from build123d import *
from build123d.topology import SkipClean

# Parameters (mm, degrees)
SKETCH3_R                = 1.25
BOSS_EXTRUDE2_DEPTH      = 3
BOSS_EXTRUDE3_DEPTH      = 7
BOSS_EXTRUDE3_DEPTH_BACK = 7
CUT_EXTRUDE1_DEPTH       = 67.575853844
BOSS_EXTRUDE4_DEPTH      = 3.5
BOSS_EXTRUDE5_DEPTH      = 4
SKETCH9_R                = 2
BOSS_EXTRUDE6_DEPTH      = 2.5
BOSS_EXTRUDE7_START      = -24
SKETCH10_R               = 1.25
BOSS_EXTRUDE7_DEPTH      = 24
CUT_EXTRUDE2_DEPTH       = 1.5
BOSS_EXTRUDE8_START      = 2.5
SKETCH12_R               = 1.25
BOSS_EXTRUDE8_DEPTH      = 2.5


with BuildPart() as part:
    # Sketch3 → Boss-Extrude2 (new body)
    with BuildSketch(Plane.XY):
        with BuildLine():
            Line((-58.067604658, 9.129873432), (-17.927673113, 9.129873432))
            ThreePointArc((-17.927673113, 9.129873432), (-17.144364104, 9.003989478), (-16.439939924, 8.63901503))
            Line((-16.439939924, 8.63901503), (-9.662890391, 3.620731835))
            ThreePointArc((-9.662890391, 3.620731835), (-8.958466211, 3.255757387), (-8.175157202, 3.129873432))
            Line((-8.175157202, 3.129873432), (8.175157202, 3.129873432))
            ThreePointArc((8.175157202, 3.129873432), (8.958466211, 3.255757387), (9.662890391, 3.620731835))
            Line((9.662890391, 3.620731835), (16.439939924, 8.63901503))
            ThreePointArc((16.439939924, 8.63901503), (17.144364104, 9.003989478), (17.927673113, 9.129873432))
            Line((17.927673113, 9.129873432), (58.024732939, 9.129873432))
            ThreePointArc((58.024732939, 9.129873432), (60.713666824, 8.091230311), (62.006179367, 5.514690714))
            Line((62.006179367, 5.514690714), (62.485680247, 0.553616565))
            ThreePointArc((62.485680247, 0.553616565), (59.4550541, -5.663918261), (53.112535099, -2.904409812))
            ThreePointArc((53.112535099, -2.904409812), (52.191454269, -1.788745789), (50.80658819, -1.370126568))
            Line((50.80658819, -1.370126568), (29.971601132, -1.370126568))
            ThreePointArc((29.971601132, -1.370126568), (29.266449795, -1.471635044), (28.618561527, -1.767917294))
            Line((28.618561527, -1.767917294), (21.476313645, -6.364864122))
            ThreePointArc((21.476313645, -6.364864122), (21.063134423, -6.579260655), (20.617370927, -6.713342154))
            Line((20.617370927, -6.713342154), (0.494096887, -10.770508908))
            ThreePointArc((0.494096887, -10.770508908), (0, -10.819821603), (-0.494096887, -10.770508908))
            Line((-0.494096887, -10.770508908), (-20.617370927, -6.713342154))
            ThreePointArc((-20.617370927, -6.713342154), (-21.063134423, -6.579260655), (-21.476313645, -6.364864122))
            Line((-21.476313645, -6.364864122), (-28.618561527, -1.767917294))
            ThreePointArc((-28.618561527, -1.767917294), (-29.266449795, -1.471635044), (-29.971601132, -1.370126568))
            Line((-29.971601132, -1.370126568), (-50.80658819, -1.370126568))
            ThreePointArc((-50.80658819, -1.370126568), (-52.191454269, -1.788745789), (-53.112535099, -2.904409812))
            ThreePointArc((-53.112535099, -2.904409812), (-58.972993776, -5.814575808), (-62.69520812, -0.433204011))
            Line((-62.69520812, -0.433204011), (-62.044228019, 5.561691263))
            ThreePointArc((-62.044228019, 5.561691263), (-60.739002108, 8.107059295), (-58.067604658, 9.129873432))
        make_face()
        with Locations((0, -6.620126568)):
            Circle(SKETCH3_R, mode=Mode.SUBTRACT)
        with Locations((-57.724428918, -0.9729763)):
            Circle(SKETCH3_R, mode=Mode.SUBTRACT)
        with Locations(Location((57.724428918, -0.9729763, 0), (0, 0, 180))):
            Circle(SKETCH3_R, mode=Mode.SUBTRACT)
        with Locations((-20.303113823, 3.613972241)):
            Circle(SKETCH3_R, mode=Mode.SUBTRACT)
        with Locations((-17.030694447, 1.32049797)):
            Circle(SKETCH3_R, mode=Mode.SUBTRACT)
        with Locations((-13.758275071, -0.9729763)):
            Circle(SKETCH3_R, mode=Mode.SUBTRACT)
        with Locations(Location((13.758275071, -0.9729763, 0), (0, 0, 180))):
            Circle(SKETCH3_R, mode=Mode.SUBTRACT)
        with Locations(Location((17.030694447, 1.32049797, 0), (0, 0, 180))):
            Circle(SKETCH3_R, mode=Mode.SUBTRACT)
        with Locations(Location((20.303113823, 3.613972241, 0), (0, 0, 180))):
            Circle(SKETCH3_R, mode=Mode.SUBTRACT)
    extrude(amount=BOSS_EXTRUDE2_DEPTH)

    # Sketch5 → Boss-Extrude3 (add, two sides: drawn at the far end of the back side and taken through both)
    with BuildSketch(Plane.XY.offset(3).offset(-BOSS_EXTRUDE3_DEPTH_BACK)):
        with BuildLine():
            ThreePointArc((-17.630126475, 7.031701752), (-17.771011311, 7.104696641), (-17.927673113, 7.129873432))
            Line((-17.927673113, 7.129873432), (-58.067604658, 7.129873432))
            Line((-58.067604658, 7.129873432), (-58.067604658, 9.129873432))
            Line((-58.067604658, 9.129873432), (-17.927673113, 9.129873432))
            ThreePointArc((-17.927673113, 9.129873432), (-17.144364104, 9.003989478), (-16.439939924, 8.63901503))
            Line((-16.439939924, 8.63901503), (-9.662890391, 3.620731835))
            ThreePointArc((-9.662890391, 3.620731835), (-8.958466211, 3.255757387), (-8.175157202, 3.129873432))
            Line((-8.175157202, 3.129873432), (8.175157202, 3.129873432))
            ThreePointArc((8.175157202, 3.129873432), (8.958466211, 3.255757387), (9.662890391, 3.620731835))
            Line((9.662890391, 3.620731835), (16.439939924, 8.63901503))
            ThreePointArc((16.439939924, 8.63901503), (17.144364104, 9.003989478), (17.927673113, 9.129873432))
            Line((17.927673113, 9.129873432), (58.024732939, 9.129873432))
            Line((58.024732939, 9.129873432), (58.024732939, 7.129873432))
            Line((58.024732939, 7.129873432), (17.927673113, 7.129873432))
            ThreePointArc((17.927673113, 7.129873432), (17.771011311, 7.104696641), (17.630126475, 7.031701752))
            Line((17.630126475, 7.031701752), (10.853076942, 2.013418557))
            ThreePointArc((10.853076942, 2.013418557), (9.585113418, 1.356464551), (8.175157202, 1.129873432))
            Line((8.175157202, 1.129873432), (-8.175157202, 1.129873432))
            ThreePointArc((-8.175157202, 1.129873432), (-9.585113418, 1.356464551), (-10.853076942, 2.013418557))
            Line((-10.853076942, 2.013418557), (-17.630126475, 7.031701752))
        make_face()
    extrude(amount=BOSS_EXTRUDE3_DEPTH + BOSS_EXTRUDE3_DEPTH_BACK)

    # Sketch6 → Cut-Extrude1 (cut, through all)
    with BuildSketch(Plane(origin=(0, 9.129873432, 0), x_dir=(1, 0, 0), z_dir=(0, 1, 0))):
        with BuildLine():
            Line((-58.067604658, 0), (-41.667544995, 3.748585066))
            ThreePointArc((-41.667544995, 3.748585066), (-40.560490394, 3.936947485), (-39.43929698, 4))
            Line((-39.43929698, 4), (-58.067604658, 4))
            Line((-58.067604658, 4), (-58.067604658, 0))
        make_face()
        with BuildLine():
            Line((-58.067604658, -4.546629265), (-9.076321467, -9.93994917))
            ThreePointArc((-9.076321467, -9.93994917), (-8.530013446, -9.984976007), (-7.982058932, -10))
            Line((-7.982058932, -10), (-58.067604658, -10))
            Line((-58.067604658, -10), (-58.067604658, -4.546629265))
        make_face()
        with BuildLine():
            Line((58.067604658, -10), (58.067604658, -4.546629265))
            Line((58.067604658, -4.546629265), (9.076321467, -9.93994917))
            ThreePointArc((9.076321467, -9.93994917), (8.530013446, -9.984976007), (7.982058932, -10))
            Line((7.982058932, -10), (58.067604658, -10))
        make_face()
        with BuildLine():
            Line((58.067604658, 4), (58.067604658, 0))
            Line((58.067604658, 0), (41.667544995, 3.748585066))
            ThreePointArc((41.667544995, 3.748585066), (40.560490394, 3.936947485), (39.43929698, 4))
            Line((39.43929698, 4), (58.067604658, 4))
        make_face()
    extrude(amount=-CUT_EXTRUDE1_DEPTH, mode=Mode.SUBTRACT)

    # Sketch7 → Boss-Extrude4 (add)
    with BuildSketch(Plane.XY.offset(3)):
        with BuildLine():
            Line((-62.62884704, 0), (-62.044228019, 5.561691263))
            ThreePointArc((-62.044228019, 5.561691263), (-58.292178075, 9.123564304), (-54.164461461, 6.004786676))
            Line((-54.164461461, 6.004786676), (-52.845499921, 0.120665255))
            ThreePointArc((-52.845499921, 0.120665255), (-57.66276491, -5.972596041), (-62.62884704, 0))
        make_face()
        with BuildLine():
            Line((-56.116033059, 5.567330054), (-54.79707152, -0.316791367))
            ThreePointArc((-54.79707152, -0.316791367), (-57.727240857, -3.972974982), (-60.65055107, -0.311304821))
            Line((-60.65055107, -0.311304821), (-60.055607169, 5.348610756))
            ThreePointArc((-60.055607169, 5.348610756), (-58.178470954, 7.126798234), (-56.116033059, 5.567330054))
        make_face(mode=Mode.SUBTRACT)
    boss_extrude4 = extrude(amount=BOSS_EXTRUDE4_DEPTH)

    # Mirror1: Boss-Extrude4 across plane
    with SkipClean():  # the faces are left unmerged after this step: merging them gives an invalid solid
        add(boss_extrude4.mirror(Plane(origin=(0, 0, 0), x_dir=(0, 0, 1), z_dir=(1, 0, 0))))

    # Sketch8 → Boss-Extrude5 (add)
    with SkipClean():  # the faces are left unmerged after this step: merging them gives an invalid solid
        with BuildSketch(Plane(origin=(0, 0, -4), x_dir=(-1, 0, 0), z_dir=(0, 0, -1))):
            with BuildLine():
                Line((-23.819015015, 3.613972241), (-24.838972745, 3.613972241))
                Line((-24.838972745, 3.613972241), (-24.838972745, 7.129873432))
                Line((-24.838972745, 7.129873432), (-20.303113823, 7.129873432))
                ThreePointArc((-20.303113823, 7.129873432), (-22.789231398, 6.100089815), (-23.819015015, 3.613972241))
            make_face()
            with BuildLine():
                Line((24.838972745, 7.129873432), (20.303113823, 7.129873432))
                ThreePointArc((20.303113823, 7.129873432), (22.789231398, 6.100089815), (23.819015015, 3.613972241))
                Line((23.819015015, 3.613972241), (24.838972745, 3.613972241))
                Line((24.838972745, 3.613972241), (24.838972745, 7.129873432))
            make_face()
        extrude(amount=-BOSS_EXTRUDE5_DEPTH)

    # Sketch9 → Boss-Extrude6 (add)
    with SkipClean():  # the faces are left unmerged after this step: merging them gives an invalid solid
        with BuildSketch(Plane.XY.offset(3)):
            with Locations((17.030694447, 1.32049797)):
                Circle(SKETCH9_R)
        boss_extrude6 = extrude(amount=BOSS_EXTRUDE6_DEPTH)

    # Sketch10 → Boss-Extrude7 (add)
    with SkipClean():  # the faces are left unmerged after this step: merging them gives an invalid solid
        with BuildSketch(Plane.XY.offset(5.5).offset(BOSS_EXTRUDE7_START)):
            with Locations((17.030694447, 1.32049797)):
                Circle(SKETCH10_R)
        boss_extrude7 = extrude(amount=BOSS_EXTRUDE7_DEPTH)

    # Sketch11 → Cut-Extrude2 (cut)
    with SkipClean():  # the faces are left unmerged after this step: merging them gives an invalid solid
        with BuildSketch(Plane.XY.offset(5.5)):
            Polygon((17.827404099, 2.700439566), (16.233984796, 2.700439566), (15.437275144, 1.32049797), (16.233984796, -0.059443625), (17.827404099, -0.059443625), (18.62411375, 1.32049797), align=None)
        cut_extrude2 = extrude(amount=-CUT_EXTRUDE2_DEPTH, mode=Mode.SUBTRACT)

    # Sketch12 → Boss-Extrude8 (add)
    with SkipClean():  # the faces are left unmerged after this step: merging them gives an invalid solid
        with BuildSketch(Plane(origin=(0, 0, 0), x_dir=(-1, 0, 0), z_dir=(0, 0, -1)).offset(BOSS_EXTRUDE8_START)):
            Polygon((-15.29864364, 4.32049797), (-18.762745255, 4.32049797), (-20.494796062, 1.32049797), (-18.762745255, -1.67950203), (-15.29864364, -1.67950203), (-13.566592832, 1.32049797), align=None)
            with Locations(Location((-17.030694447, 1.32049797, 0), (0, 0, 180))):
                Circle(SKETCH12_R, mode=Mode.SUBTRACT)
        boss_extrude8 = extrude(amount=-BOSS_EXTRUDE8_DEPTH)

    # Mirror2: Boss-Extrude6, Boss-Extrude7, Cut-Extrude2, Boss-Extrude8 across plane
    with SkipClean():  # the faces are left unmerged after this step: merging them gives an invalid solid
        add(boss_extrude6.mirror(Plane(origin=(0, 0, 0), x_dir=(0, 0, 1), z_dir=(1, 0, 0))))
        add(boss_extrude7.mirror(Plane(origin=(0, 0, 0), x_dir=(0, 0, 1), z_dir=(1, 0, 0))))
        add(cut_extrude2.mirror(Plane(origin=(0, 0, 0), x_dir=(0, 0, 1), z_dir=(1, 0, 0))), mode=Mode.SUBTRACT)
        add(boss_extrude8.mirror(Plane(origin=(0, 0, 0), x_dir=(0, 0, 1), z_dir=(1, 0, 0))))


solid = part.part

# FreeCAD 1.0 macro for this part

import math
import FreeCAD as App
import Part
import Sketcher
Q = App.Units.Quantity

doc = App.newDocument("Part")
body = doc.addObject("PartDesign::Body", "Body")

sketch1 = body.newObject("Sketcher::SketchObject", "Sketch")
sketch1.AttachmentSupport = (doc.getObject("XY_Plane"), [""])
sketch1.MapMode = "FlatFace"
sketch1.addGeometry([
    Part.LineSegment(App.Vector(-17.927673, 9.129873, 0), App.Vector(-58.067605, 9.129873, 0)),
    Part.ArcOfCircle(Part.Circle(App.Vector(-58.067605, 5.129873, 0), App.Vector(0, 0, 1), 4), math.radians(90), math.radians(173.802588)),
    Part.LineSegment(App.Vector(-62.044228, 5.561691, 0), App.Vector(-62.695208, -0.433204, 0)),
    Part.ArcOfCircle(Part.Circle(App.Vector(-57.724429, -0.972976, 0), App.Vector(0, 0, 1), 5), math.radians(173.802588), math.radians(337.276356)),
    Part.ArcOfCircle(Part.Circle(App.Vector(-50.806588, -3.870127, 0), App.Vector(0, 0, 1), 2.5), math.radians(90), math.radians(157.276356)),
    Part.LineSegment(App.Vector(-50.806588, -1.370127, 0), App.Vector(-29.971601, -1.370127, 0)),
    Part.ArcOfCircle(Part.Circle(App.Vector(-29.971601, -3.870127, 0), App.Vector(0, 0, 1), 2.5), math.radians(57.233555), math.radians(90)),
    Part.LineSegment(App.Vector(-28.618562, -1.767917, 0), App.Vector(-21.476314, -6.364864, 0)),
    Part.ArcOfCircle(Part.Circle(App.Vector(-20.123274, -4.262655, 0), App.Vector(0, 0, 1), 2.5), math.radians(-122.766445), math.radians(-101.398914)),
    Part.LineSegment(App.Vector(-20.617371, -6.713342, 0), App.Vector(-0.494097, -10.770509, 0)),
    Part.ArcOfCircle(Part.Circle(App.Vector(0, -8.319822, 0), App.Vector(0, 0, 1), 2.5), math.radians(-101.398914), math.radians(-78.601086)),
    Part.LineSegment(App.Vector(0.494097, -10.770509, 0), App.Vector(20.617371, -6.713342, 0)),
    Part.ArcOfCircle(Part.Circle(App.Vector(20.123274, -4.262655, 0), App.Vector(0, 0, 1), 2.5), math.radians(-78.601086), math.radians(-57.233555)),
    Part.LineSegment(App.Vector(21.476314, -6.364864, 0), App.Vector(28.618562, -1.767917, 0)),
    Part.ArcOfCircle(Part.Circle(App.Vector(29.971601, -3.870127, 0), App.Vector(0, 0, 1), 2.5), math.radians(90), math.radians(122.766445)),
    Part.LineSegment(App.Vector(29.971601, -1.370127, 0), App.Vector(50.806588, -1.370127, 0)),
    Part.ArcOfCircle(Part.Circle(App.Vector(50.806588, -3.870127, 0), App.Vector(0, 0, 1), 2.5), math.radians(22.723644), math.radians(90)),
    Part.ArcOfCircle(Part.Circle(App.Vector(57.724429, -0.972976, 0), App.Vector(0, 0, 1), 5), math.radians(-157.276356), math.radians(17.777331)),
    Part.LineSegment(App.Vector(62.48568, 0.553617, 0), App.Vector(62.006179, 5.514691, 0)),
    Part.ArcOfCircle(Part.Circle(App.Vector(58.024733, 5.129873, 0), App.Vector(0, 0, 1), 4), math.radians(5.52064), math.radians(90)),
    Part.LineSegment(App.Vector(58.024733, 9.129873, 0), App.Vector(17.927673, 9.129873, 0)),
    Part.ArcOfCircle(Part.Circle(App.Vector(17.927673, 6.629873, 0), App.Vector(0, 0, 1), 2.5), math.radians(90), math.radians(126.519282)),
    Part.LineSegment(App.Vector(16.43994, 8.639015, 0), App.Vector(9.66289, 3.620732, 0)),
    Part.ArcOfCircle(Part.Circle(App.Vector(8.175157, 5.629873, 0), App.Vector(0, 0, 1), 2.5), math.radians(-90), math.radians(-53.480718)),
    Part.LineSegment(App.Vector(8.175157, 3.129873, 0), App.Vector(-8.175157, 3.129873, 0)),
    Part.ArcOfCircle(Part.Circle(App.Vector(-8.175157, 5.629873, 0), App.Vector(0, 0, 1), 2.5), math.radians(-126.519282), math.radians(-90)),
    Part.LineSegment(App.Vector(-9.66289, 3.620732, 0), App.Vector(-16.43994, 8.639015, 0)),
    Part.ArcOfCircle(Part.Circle(App.Vector(-17.927673, 6.629873, 0), App.Vector(0, 0, 1), 2.5), math.radians(53.480718), math.radians(90)),
    Part.Circle(App.Vector(0, -6.620127, 0), App.Vector(0, 0, 1), 1.25),
    Part.Circle(App.Vector(57.724429, -0.972976, 0), App.Vector(0, 0, 1), 1.25),
    Part.Circle(App.Vector(13.758275, -0.972976, 0), App.Vector(0, 0, 1), 1.25),
    Part.Circle(App.Vector(17.030694, 1.320498, 0), App.Vector(0, 0, 1), 1.25),
    Part.Circle(App.Vector(20.303114, 3.613972, 0), App.Vector(0, 0, 1), 1.25),
    Part.Circle(App.Vector(-13.758275, -0.972976, 0), App.Vector(0, 0, 1), 1.25),
    Part.Circle(App.Vector(-17.030694, 1.320498, 0), App.Vector(0, 0, 1), 1.25),
    Part.Circle(App.Vector(-57.724429, -0.972976, 0), App.Vector(0, 0, 1), 1.25),
    Part.Circle(App.Vector(-20.303114, 3.613972, 0), App.Vector(0, 0, 1), 1.25),
], False)
sketch1.addConstraint([
    Sketcher.Constraint("Tangent", 0, 2, 1, 1),
    Sketcher.Constraint("Tangent", 1, 2, 2, 1),
    Sketcher.Constraint("Tangent", 2, 2, 3, 1),
    Sketcher.Constraint("Tangent", 3, 2, 4, 2),
    Sketcher.Constraint("Tangent", 4, 1, 5, 1),
    Sketcher.Constraint("Tangent", 5, 2, 6, 2),
    Sketcher.Constraint("Tangent", 6, 1, 7, 1),
    Sketcher.Constraint("Tangent", 7, 2, 8, 1),
    Sketcher.Constraint("Tangent", 8, 2, 9, 1),
    Sketcher.Constraint("Tangent", 9, 2, 10, 1),
    Sketcher.Constraint("Tangent", 10, 2, 11, 1),
    Sketcher.Constraint("Tangent", 11, 2, 12, 1),
    Sketcher.Constraint("Tangent", 12, 2, 13, 1),
    Sketcher.Constraint("Tangent", 13, 2, 14, 2),
    Sketcher.Constraint("Tangent", 14, 1, 15, 1),
    Sketcher.Constraint("Tangent", 15, 2, 16, 2),
    Sketcher.Constraint("Tangent", 16, 1, 17, 1),
    Sketcher.Constraint("Coincident", 17, 2, 18, 1),
    Sketcher.Constraint("Tangent", 18, 2, 19, 1),
    Sketcher.Constraint("Tangent", 19, 2, 20, 1),
    Sketcher.Constraint("Tangent", 20, 2, 21, 1),
    Sketcher.Constraint("Tangent", 21, 2, 22, 1),
    Sketcher.Constraint("Tangent", 22, 2, 23, 2),
    Sketcher.Constraint("Tangent", 23, 1, 24, 1),
    Sketcher.Constraint("Tangent", 24, 2, 25, 2),
    Sketcher.Constraint("Tangent", 25, 1, 26, 1),
    Sketcher.Constraint("Tangent", 26, 2, 27, 1),
    Sketcher.Constraint("Tangent", 27, 2, 0, 1),
    Sketcher.Constraint("Horizontal", 0),
    Sketcher.Constraint("Horizontal", 5),
    Sketcher.Constraint("Horizontal", 15),
    Sketcher.Constraint("Horizontal", 20),
    Sketcher.Constraint("Horizontal", 24),
    Sketcher.Constraint("Coincident", 29, 3, 17, 3),
    Sketcher.Constraint("Coincident", 35, 3, 3, 3),
    Sketcher.Constraint("Equal", 4, 6),
    Sketcher.Constraint("Equal", 6, 8),
    Sketcher.Constraint("Equal", 8, 10),
    Sketcher.Constraint("Equal", 10, 12),
    Sketcher.Constraint("Equal", 12, 14),
    Sketcher.Constraint("Equal", 14, 16),
    Sketcher.Constraint("Equal", 3, 17),
    Sketcher.Constraint("Equal", 1, 19),
    Sketcher.Constraint("Equal", 16, 21),
    Sketcher.Constraint("Equal", 21, 23),
    Sketcher.Constraint("Equal", 23, 25),
    Sketcher.Constraint("Equal", 25, 27),
    Sketcher.Constraint("Equal", 28, 29),
    Sketcher.Constraint("Equal", 29, 30),
    Sketcher.Constraint("Equal", 30, 31),
    Sketcher.Constraint("Equal", 31, 32),
    Sketcher.Constraint("Equal", 32, 33),
    Sketcher.Constraint("Equal", 33, 34),
    Sketcher.Constraint("Equal", 34, 35),
    Sketcher.Constraint("Equal", 35, 36),
    Sketcher.Constraint("Symmetric", 8, 3, 12, 3, -2),
    Sketcher.Constraint("Symmetric", 6, 3, 14, 3, -2),
    Sketcher.Constraint("Symmetric", 3, 3, 17, 3, -2),
    Sketcher.Constraint("Symmetric", 21, 3, 27, 3, -2),
    Sketcher.Constraint("Symmetric", 30, 3, 33, 3, -2),
    Sketcher.Constraint("Symmetric", 31, 3, 34, 3, -2),
    Sketcher.Constraint("Symmetric", 32, 3, 36, 3, -2),
    Sketcher.Constraint("PointOnObject", 10, 3, -2),
    Sketcher.Constraint("PointOnObject", 28, 3, -2),
    Sketcher.Constraint("Horizontal", 29, 3, 30, 3),
    Sketcher.Constraint("Horizontal", 22, 2, 25, 1),
    Sketcher.Constraint("Radius", 1, Q("4 mm")),
    Sketcher.Constraint("Radius", 3, Q("5 mm")),
    Sketcher.Constraint("Diameter", 28, Q("2.5 mm")),
    Sketcher.Constraint("Radius", 4, Q("2.5 mm")),
    Sketcher.Constraint("DistanceY", 4, 3, 1, 3, Q("9 mm")),
    Sketcher.Constraint("DistanceY", 23, 3, 21, 3, Q("1 mm")),
    Sketcher.Constraint("DistanceY", 28, 3, 23, 3, Q("12.25 mm")),
    Sketcher.Constraint("DistanceX", 30, 3, 12, 3, Q("6.364999 mm")),
    Sketcher.Constraint("DistanceX", 0, 2, 0, 1, Q("40.139932 mm")),
    Sketcher.Constraint("DistanceX", 20, 2, 20, 1, Q("40.09706 mm")),
    Sketcher.Constraint("DistanceX", 6, 3, -1, 1, Q("29.971601 mm")),
    Sketcher.Constraint("DistanceX", 21, 3, 12, 3, Q("2.195601 mm")),
    Sketcher.Constraint("DistanceY", 32, 3, 21, 3, Q("3.015901 mm")),
    Sketcher.Constraint("DistanceX", 1, 2, 35, 3, Q("4.319799 mm")),
    Sketcher.Constraint("DistanceX", 18, 2, 17, 2, Q("0.479501 mm")),
    Sketcher.Constraint("DistanceY", 16, 1, 18, 2, Q("8.419101 mm")),
    Sketcher.Constraint("Distance", 7, Q("8.49374 mm")),
    Sketcher.Constraint("DistanceX", 5, 1, 5, 2, Q("20.834987 mm")),
    Sketcher.Constraint("DistanceX", 24, 2, 24, 1, Q("16.350314 mm")),
    Sketcher.Constraint("DistanceY", 10, 3, -1, 1, Q("8.319822 mm")),
    Sketcher.Constraint("DistanceY", -1, 1, 1, 2, Q("5.561691 mm")),
    Sketcher.Constraint("DistanceX", 30, 3, 31, 3, Q("3.272419 mm")),
    Sketcher.Constraint("DistanceX", 21, 3, 32, 3, Q("2.375441 mm")),
    Sketcher.Constraint("DistanceY", 8, 2, 34, 3, Q("8.03384 mm")),
])
pad1 = body.newObject("PartDesign::Pad", "Pad")
pad1.Profile = sketch1
pad1.Length = 3

sketch2 = body.newObject("Sketcher::SketchObject", "Sketch001")
sketch2.AttachmentSupport = (doc.getObject("XY_Plane"), [""])
sketch2.MapMode = "FlatFace"
sketch2.AttachmentOffset = App.Placement(App.Vector(0, 0, 3), App.Rotation())
sketch2.addGeometry([
    Part.ArcOfCircle(Part.Circle(App.Vector(-17.927673, 6.629873, 0), App.Vector(0, 0, 1), 0.5), math.radians(53.480718), math.radians(90)),
    Part.LineSegment(App.Vector(-17.630126, 7.031702, 0), App.Vector(-10.853077, 2.013419, 0)),
    Part.ArcOfCircle(Part.Circle(App.Vector(-8.175157, 5.629873, 0), App.Vector(0, 0, 1), 4.5), math.radians(-126.519282), math.radians(-90)),
    Part.LineSegment(App.Vector(-8.175157, 1.129873, 0), App.Vector(8.175157, 1.129873, 0)),
    Part.ArcOfCircle(Part.Circle(App.Vector(8.175157, 5.629873, 0), App.Vector(0, 0, 1), 4.5), math.radians(-90), math.radians(-53.480718)),
    Part.LineSegment(App.Vector(10.853077, 2.013419, 0), App.Vector(17.630126, 7.031702, 0)),
    Part.ArcOfCircle(Part.Circle(App.Vector(17.927673, 6.629873, 0), App.Vector(0, 0, 1), 0.5), math.radians(90), math.radians(126.519282)),
    Part.LineSegment(App.Vector(17.927673, 7.129873, 0), App.Vector(58.024733, 7.129873, 0)),
    Part.LineSegment(App.Vector(58.024733, 7.129873, 0), App.Vector(58.024733, 9.129873, 0)),
    Part.LineSegment(App.Vector(58.024733, 9.129873, 0), App.Vector(17.927673, 9.129873, 0)),
    Part.ArcOfCircle(Part.Circle(App.Vector(17.927673, 6.629873, 0), App.Vector(0, 0, 1), 2.5), math.radians(90), math.radians(126.519282)),
    Part.LineSegment(App.Vector(16.43994, 8.639015, 0), App.Vector(9.66289, 3.620732, 0)),
    Part.ArcOfCircle(Part.Circle(App.Vector(8.175157, 5.629873, 0), App.Vector(0, 0, 1), 2.5), math.radians(-90), math.radians(-53.480718)),
    Part.LineSegment(App.Vector(8.175157, 3.129873, 0), App.Vector(-8.175157, 3.129873, 0)),
    Part.ArcOfCircle(Part.Circle(App.Vector(-8.175157, 5.629873, 0), App.Vector(0, 0, 1), 2.5), math.radians(-126.519282), math.radians(-90)),
    Part.LineSegment(App.Vector(-9.66289, 3.620732, 0), App.Vector(-16.43994, 8.639015, 0)),
    Part.ArcOfCircle(Part.Circle(App.Vector(-17.927673, 6.629873, 0), App.Vector(0, 0, 1), 2.5), math.radians(53.480718), math.radians(90)),
    Part.LineSegment(App.Vector(-17.927673, 9.129873, 0), App.Vector(-58.067605, 9.129873, 0)),
    Part.LineSegment(App.Vector(-58.067605, 9.129873, 0), App.Vector(-58.067605, 7.129873, 0)),
    Part.LineSegment(App.Vector(-58.067605, 7.129873, 0), App.Vector(-17.927673, 7.129873, 0)),
], False)
sketch2.addConstraint([
    Sketcher.Constraint("Tangent", 0, 1, 1, 1),
    Sketcher.Constraint("Tangent", 1, 2, 2, 1),
    Sketcher.Constraint("Tangent", 2, 2, 3, 1),
    Sketcher.Constraint("Tangent", 3, 2, 4, 1),
    Sketcher.Constraint("Tangent", 4, 2, 5, 1),
    Sketcher.Constraint("Tangent", 5, 2, 6, 2),
    Sketcher.Constraint("Tangent", 6, 1, 7, 1),
    Sketcher.Constraint("Coincident", 7, 2, 8, 1),
    Sketcher.Constraint("Coincident", 8, 2, 9, 1),
    Sketcher.Constraint("Tangent", 9, 2, 10, 1),
    Sketcher.Constraint("Tangent", 10, 2, 11, 1),
    Sketcher.Constraint("Tangent", 11, 2, 12, 2),
    Sketcher.Constraint("Tangent", 12, 1, 13, 1),
    Sketcher.Constraint("Tangent", 13, 2, 14, 2),
    Sketcher.Constraint("Tangent", 14, 1, 15, 1),
    Sketcher.Constraint("Tangent", 15, 2, 16, 1),
    Sketcher.Constraint("Tangent", 16, 2, 17, 1),
    Sketcher.Constraint("Coincident", 17, 2, 18, 1),
    Sketcher.Constraint("Coincident", 18, 2, 19, 1),
    Sketcher.Constraint("Tangent", 19, 2, 0, 2),
    Sketcher.Constraint("Horizontal", 3),
    Sketcher.Constraint("Horizontal", 7),
    Sketcher.Constraint("Vertical", 8),
    Sketcher.Constraint("Horizontal", 9),
    Sketcher.Constraint("Horizontal", 13),
    Sketcher.Constraint("Horizontal", 17),
    Sketcher.Constraint("Vertical", 18),
    Sketcher.Constraint("Horizontal", 19),
    Sketcher.Constraint("Coincident", 10, 3, 6, 3),
    Sketcher.Constraint("Coincident", 12, 3, 4, 3),
    Sketcher.Constraint("Coincident", 14, 3, 2, 3),
    Sketcher.Constraint("Coincident", 16, 3, 0, 3),
    Sketcher.Constraint("Equal", 2, 4),
    Sketcher.Constraint("Equal", 0, 6),
    Sketcher.Constraint("Equal", 10, 12),
    Sketcher.Constraint("Equal", 14, 16),
    Sketcher.Constraint("Symmetric", 0, 3, 6, 3, -2),
    Sketcher.Constraint("Parallel", 5, 11),
    Sketcher.Constraint("Horizontal", 1, 2, 4, 2),
    Sketcher.Constraint("Radius", 0, Q("0.5 mm")),
    Sketcher.Constraint("Radius", 2, Q("4.5 mm")),
    Sketcher.Constraint("DistanceY", 2, 3, 0, 3, Q("1 mm")),
    Sketcher.Constraint("DistanceX", 7, 1, 7, 2, Q("40.09706 mm")),
    Sketcher.Constraint("DistanceX", 17, 2, 17, 1, Q("40.139932 mm")),
    Sketcher.Constraint("DistanceY", -1, 1, 0, 1, Q("7.031702 mm")),
    Sketcher.Constraint("DistanceX", 3, 1, 3, 2, Q("16.350314 mm")),
    Sketcher.Constraint("DistanceY", -1, 1, 1, 2, Q("2.013419 mm")),
])
pad2 = body.newObject("PartDesign::Pad", "Pad001")
pad2.Profile = sketch2
pad2.Type = "TwoLengths"
pad2.Length = 7
pad2.Length2 = 7

sketch3 = body.newObject("Sketcher::SketchObject", "Sketch002")
sketch3.AttachmentSupport = (doc.getObject("XZ_Plane"), [""])
sketch3.MapMode = "FlatFace"
sketch3.AttachmentOffset = App.Placement(App.Vector(0, 0, -9.129873), App.Rotation())
sketch3.addGeometry([
    Part.LineSegment(App.Vector(-58.067605, 0, 0), App.Vector(-41.667545, -3.748585, 0)),
    Part.ArcOfCircle(Part.Circle(App.Vector(-39.439297, 6, 0), App.Vector(0, 0, 1), 10), math.radians(-102.875001), math.radians(-90)),
    Part.LineSegment(App.Vector(-39.439297, -4, 0), App.Vector(-58.067605, -4, 0)),
    Part.LineSegment(App.Vector(-58.067605, -4, 0), App.Vector(-58.067605, 0, 0)),
    Part.LineSegment(App.Vector(-9.076321, 9.939949, 0), App.Vector(-58.067605, 4.546629, 0)),
    Part.LineSegment(App.Vector(-58.067605, 4.546629, 0), App.Vector(-58.067605, 10, 0)),
    Part.LineSegment(App.Vector(-58.067605, 10, 0), App.Vector(-7.982059, 10, 0)),
    Part.ArcOfCircle(Part.Circle(App.Vector(-7.982059, 0, 0), App.Vector(0, 0, 1), 10), math.radians(90), math.radians(96.282243)),
    Part.LineSegment(App.Vector(58.067605, 10, 0), App.Vector(58.067605, 4.546629, 0)),
    Part.LineSegment(App.Vector(58.067605, 4.546629, 0), App.Vector(9.076321, 9.939949, 0)),
    Part.ArcOfCircle(Part.Circle(App.Vector(7.982059, 0, 0), App.Vector(0, 0, 1), 10), math.radians(83.717757), math.radians(90)),
    Part.LineSegment(App.Vector(7.982059, 10, 0), App.Vector(58.067605, 10, 0)),
    Part.LineSegment(App.Vector(58.067605, 0, 0), App.Vector(58.067605, -4, 0)),
    Part.LineSegment(App.Vector(58.067605, -4, 0), App.Vector(39.439297, -4, 0)),
    Part.ArcOfCircle(Part.Circle(App.Vector(39.439297, 6, 0), App.Vector(0, 0, 1), 10), math.radians(-90), math.radians(-77.124999)),
    Part.LineSegment(App.Vector(41.667545, -3.748585, 0), App.Vector(58.067605, 0, 0)),
], False)
sketch3.addConstraint([
    Sketcher.Constraint("Tangent", 0, 2, 1, 1),
    Sketcher.Constraint("Tangent", 1, 2, 2, 1),
    Sketcher.Constraint("Coincident", 2, 2, 3, 1),
    Sketcher.Constraint("Coincident", 3, 2, 0, 1),
    Sketcher.Constraint("Coincident", 4, 2, 5, 1),
    Sketcher.Constraint("Coincident", 5, 2, 6, 1),
    Sketcher.Constraint("Tangent", 6, 2, 7, 1),
    Sketcher.Constraint("Tangent", 7, 2, 4, 1),
    Sketcher.Constraint("Coincident", 8, 2, 9, 1),
    Sketcher.Constraint("Tangent", 9, 2, 10, 1),
    Sketcher.Constraint("Tangent", 10, 2, 11, 1),
    Sketcher.Constraint("Coincident", 11, 2, 8, 1),
    Sketcher.Constraint("Coincident", 12, 2, 13, 1),
    Sketcher.Constraint("Tangent", 13, 2, 14, 1),
    Sketcher.Constraint("Tangent", 14, 2, 15, 1),
    Sketcher.Constraint("Coincident", 15, 2, 12, 1),
    Sketcher.Constraint("Horizontal", 2),
    Sketcher.Constraint("Vertical", 3),
    Sketcher.Constraint("Vertical", 5),
    Sketcher.Constraint("Horizontal", 6),
    Sketcher.Constraint("Vertical", 8),
    Sketcher.Constraint("Horizontal", 11),
    Sketcher.Constraint("Vertical", 12),
    Sketcher.Constraint("Horizontal", 13),
    Sketcher.Constraint("Equal", 1, 7),
    Sketcher.Constraint("Equal", 7, 10),
    Sketcher.Constraint("Equal", 10, 14),
    Sketcher.Constraint("Symmetric", 7, 3, 10, 3, -1, 1),
    Sketcher.Constraint("Symmetric", 3, 2, 15, 2, -1, 1),
    Sketcher.Constraint("Symmetric", 1, 3, 14, 3, -2),
    Sketcher.Constraint("Symmetric", 4, 2, 8, 2, -2),
    Sketcher.Constraint("PointOnObject", 7, 3, -1),
    Sketcher.Constraint("PointOnObject", 3, 2, -1),
    Sketcher.Constraint("Vertical", 3, 2, 4, 2),
    Sketcher.Constraint("Radius", 1, Q("10 mm")),
    Sketcher.Constraint("DistanceY", 3, 1, 3, 2, Q("4 mm")),
    Sketcher.Constraint("DistanceY", 5, 1, 5, 2, Q("5.453371 mm")),
    Sketcher.Constraint("DistanceX", 2, 2, 2, 1, Q("18.628308 mm")),
    Sketcher.Constraint("DistanceX", 6, 1, 6, 2, Q("50.085546 mm")),
    Sketcher.Constraint("DistanceX", 7, 3, -1, 1, Q("7.982059 mm")),
])
pocket1 = body.newObject("PartDesign::Pocket", "Pocket")
pocket1.Profile = sketch3
pocket1.Type = "ThroughAll"
pocket1.Reversed = True

sketch4 = body.newObject("Sketcher::SketchObject", "Sketch003")
sketch4.AttachmentSupport = (doc.getObject("XY_Plane"), [""])
sketch4.MapMode = "FlatFace"
sketch4.AttachmentOffset = App.Placement(App.Vector(0, 0, 3), App.Rotation())
sketch4.addGeometry([
    Part.LineSegment(App.Vector(-62.044228, 5.561691, 0), App.Vector(-62.628847, 0, 0)),
    Part.ArcOfCircle(Part.Circle(App.Vector(-57.724429, -0.972976, 0), App.Vector(0, 0, 1), 5), math.radians(168.778919), math.radians(372.634352)),
    Part.LineSegment(App.Vector(-52.8455, 0.120665, 0), App.Vector(-54.164461, 6.004787, 0)),
    Part.ArcOfCircle(Part.Circle(App.Vector(-58.067605, 5.129873, 0), App.Vector(0, 0, 1), 4), math.radians(12.634352), math.radians(173.802588)),
    Part.LineSegment(App.Vector(-56.116033, 5.56733, 0), App.Vector(-54.797072, -0.316791, 0)),
    Part.ArcOfCircle(Part.Circle(App.Vector(-57.724429, -0.972976, 0), App.Vector(0, 0, 1), 3), math.radians(167.25824), math.radians(372.634352)),
    Part.LineSegment(App.Vector(-60.650551, -0.311305, 0), App.Vector(-60.055607, 5.348611, 0)),
    Part.ArcOfCircle(Part.Circle(App.Vector(-58.067605, 5.129873, 0), App.Vector(0, 0, 1), 2), math.radians(12.634352), math.radians(173.721077)),
], False)
sketch4.addConstraint([
    Sketcher.Constraint("Coincident", 0, 2, 1, 1),
    Sketcher.Constraint("Tangent", 1, 2, 2, 1),
    Sketcher.Constraint("Tangent", 2, 2, 3, 1),
    Sketcher.Constraint("Coincident", 3, 2, 0, 1),
    Sketcher.Constraint("Tangent", 4, 2, 5, 2),
    Sketcher.Constraint("Coincident", 5, 1, 6, 1),
    Sketcher.Constraint("Coincident", 6, 2, 7, 2),
    Sketcher.Constraint("Tangent", 7, 1, 4, 1),
    Sketcher.Constraint("Coincident", 5, 3, 1, 3),
    Sketcher.Constraint("Coincident", 7, 3, 3, 3),
    Sketcher.Constraint("PointOnObject", 0, 2, -1),
    Sketcher.Constraint("Parallel", 2, 4),
    Sketcher.Constraint("Parallel", 0, 6),
    Sketcher.Constraint("Radius", 1, Q("5 mm")),
    Sketcher.Constraint("Radius", 3, Q("4 mm")),
    Sketcher.Constraint("Radius", 5, Q("3 mm")),
    Sketcher.Constraint("Distance", 6, Q("5.691099 mm")),
    Sketcher.Constraint("DistanceX", 1, 2, -1, 1, Q("52.8455 mm")),
    Sketcher.Constraint("DistanceX", 3, 2, 1, 3, Q("4.319799 mm")),
    Sketcher.Constraint("DistanceX", 1, 3, -1, 1, Q("57.724429 mm")),
    Sketcher.Constraint("DistanceX", 2, 2, -1, 1, Q("54.164461 mm")),
    Sketcher.Constraint("DistanceY", -1, 1, 3, 2, Q("5.561691 mm")),
])
pad3 = body.newObject("PartDesign::Pad", "Pad002")
pad3.Profile = sketch4
pad3.Length = 3.5
doc.recompute()

mirrored = body.newObject("PartDesign::Mirrored", "Mirrored")
mirrored.Originals = [pad3]
mirrored.MirrorPlane = (doc.getObject("YZ_Plane"), [""])
body.Tip = mirrored

sketch5 = body.newObject("Sketcher::SketchObject", "Sketch004")
sketch5.AttachmentSupport = (doc.getObject("XY_Plane"), [""])
sketch5.MapMode = "FlatFace"
sketch5.AttachmentOffset = App.Placement(App.Vector(0, 0, -4), App.Rotation())
sketch5.addGeometry([
    Part.LineSegment(App.Vector(24.838973, 3.613972, 0), App.Vector(23.819015, 3.613972, 0)),
    Part.ArcOfCircle(Part.Circle(App.Vector(20.303114, 3.613972, 0), App.Vector(0, 0, 1), 3.515901), math.radians(0), math.radians(90)),
    Part.LineSegment(App.Vector(20.303114, 7.129873, 0), App.Vector(24.838973, 7.129873, 0)),
    Part.LineSegment(App.Vector(24.838973, 7.129873, 0), App.Vector(24.838973, 3.613972, 0)),
    Part.LineSegment(App.Vector(-24.838973, 7.129873, 0), App.Vector(-20.303114, 7.129873, 0)),
    Part.ArcOfCircle(Part.Circle(App.Vector(-20.303114, 3.613972, 0), App.Vector(0, 0, 1), 3.515901), math.radians(90), math.radians(180)),
    Part.LineSegment(App.Vector(-23.819015, 3.613972, 0), App.Vector(-24.838973, 3.613972, 0)),
    Part.LineSegment(App.Vector(-24.838973, 3.613972, 0), App.Vector(-24.838973, 7.129873, 0)),
], False)
sketch5.addConstraint([
    Sketcher.Constraint("Coincident", 0, 2, 1, 1),
    Sketcher.Constraint("Tangent", 1, 2, 2, 1),
    Sketcher.Constraint("Coincident", 2, 2, 3, 1),
    Sketcher.Constraint("Coincident", 3, 2, 0, 1),
    Sketcher.Constraint("Tangent", 4, 2, 5, 1),
    Sketcher.Constraint("Coincident", 5, 2, 6, 1),
    Sketcher.Constraint("Coincident", 6, 2, 7, 1),
    Sketcher.Constraint("Coincident", 7, 2, 4, 1),
    Sketcher.Constraint("Horizontal", 0),
    Sketcher.Constraint("Horizontal", 2),
    Sketcher.Constraint("Vertical", 3),
    Sketcher.Constraint("Horizontal", 4),
    Sketcher.Constraint("Horizontal", 6),
    Sketcher.Constraint("Vertical", 7),
    Sketcher.Constraint("Equal", 1, 5),
    Sketcher.Constraint("Symmetric", 1, 3, 5, 3, -2),
    Sketcher.Constraint("Symmetric", 3, 2, 6, 2, -2),
    Sketcher.Constraint("Horizontal", 5, 3, 0, 2),
    Sketcher.Constraint("Radius", 1, Q("3.515901 mm")),
    Sketcher.Constraint("DistanceX", 2, 1, 2, 2, Q("4.535859 mm")),
    Sketcher.Constraint("DistanceX", 5, 3, 0, 2, Q("44.122129 mm")),
    Sketcher.Constraint("DistanceY", -1, 1, 1, 3, Q("3.613972 mm")),
])
pad4 = body.newObject("PartDesign::Pad", "Pad003")
pad4.Profile = sketch5
pad4.Length = 4

sketch6 = body.newObject("Sketcher::SketchObject", "Sketch005")
sketch6.AttachmentSupport = (doc.getObject("XY_Plane"), [""])
sketch6.MapMode = "FlatFace"
sketch6.AttachmentOffset = App.Placement(App.Vector(0, 0, 3), App.Rotation())
sketch6.addGeometry(Part.Circle(App.Vector(17.030694, 1.320498, 0), App.Vector(0, 0, 1), 2), False)
sketch6.addConstraint([
    Sketcher.Constraint("Diameter", 0, Q("4 mm")),
    Sketcher.Constraint("DistanceX", -1, 1, 0, 3, Q("17.030694 mm")),
    Sketcher.Constraint("DistanceY", -1, 1, 0, 3, Q("1.320498 mm")),
])
pad5 = body.newObject("PartDesign::Pad", "Pad004")
pad5.Profile = sketch6
pad5.Length = 2.5

sketch7 = body.newObject("Sketcher::SketchObject", "Sketch006")
sketch7.AttachmentSupport = (doc.getObject("XY_Plane"), [""])
sketch7.MapMode = "FlatFace"
sketch7.AttachmentOffset = App.Placement(App.Vector(0, 0, -18.5), App.Rotation())
sketch7.addGeometry(Part.Circle(App.Vector(17.030694, 1.320498, 0), App.Vector(0, 0, 1), 1.25), False)
sketch7.addConstraint([
    Sketcher.Constraint("Diameter", 0, Q("2.5 mm")),
    Sketcher.Constraint("DistanceX", -1, 1, 0, 3, Q("17.030694 mm")),
    Sketcher.Constraint("DistanceY", -1, 1, 0, 3, Q("1.320498 mm")),
])
pad6 = body.newObject("PartDesign::Pad", "Pad005")
pad6.Profile = sketch7
pad6.Length = 24

sketch8 = body.newObject("Sketcher::SketchObject", "Sketch007")
sketch8.AttachmentSupport = (doc.getObject("XY_Plane"), [""])
sketch8.MapMode = "FlatFace"
sketch8.AttachmentOffset = App.Placement(App.Vector(0, 0, 5.5), App.Rotation())
sketch8.addGeometry([
    Part.LineSegment(App.Vector(17.827404, 2.70044, 0), App.Vector(16.233985, 2.70044, 0)),
    Part.LineSegment(App.Vector(16.233985, 2.70044, 0), App.Vector(15.437275, 1.320498, 0)),
    Part.LineSegment(App.Vector(15.437275, 1.320498, 0), App.Vector(16.233985, -0.059444, 0)),
    Part.LineSegment(App.Vector(16.233985, -0.059444, 0), App.Vector(17.827404, -0.059444, 0)),
    Part.LineSegment(App.Vector(17.827404, -0.059444, 0), App.Vector(18.624114, 1.320498, 0)),
    Part.LineSegment(App.Vector(18.624114, 1.320498, 0), App.Vector(17.827404, 2.70044, 0)),
], False)
sketch8.addConstraint([
    Sketcher.Constraint("Coincident", 0, 2, 1, 1),
    Sketcher.Constraint("Coincident", 1, 2, 2, 1),
    Sketcher.Constraint("Coincident", 2, 2, 3, 1),
    Sketcher.Constraint("Coincident", 3, 2, 4, 1),
    Sketcher.Constraint("Coincident", 4, 2, 5, 1),
    Sketcher.Constraint("Coincident", 5, 2, 0, 1),
    Sketcher.Constraint("Horizontal", 0),
    Sketcher.Constraint("Horizontal", 3),
    Sketcher.Constraint("Parallel", 1, 4),
    Sketcher.Constraint("Parallel", 2, 5),
    Sketcher.Constraint("Horizontal", 1, 2, 4, 2),
    Sketcher.Constraint("Vertical", 0, 2, 2, 2),
    Sketcher.Constraint("Vertical", 3, 2, 5, 2),
    Sketcher.Constraint("Angle", 1, Q("-120 deg")),
    Sketcher.Constraint("DistanceX", 0, 2, 0, 1, Q("1.593419 mm")),
    Sketcher.Constraint("Distance", 1, Q("1.593419 mm")),
    Sketcher.Constraint("DistanceY", -1, 1, 0, 2, Q("2.70044 mm")),
    Sketcher.Constraint("DistanceX", -1, 1, 0, 2, Q("16.233985 mm")),
])
pocket2 = body.newObject("PartDesign::Pocket", "Pocket001")
pocket2.Profile = sketch8
pocket2.Length = 1.5

sketch9 = body.newObject("Sketcher::SketchObject", "Sketch008")
sketch9.AttachmentSupport = (doc.getObject("XY_Plane"), [""])
sketch9.MapMode = "FlatFace"
sketch9.AttachmentOffset = App.Placement(App.Vector(0, 0, -2.5), App.Rotation())
sketch9.addGeometry([
    Part.LineSegment(App.Vector(15.298644, 4.320498, 0), App.Vector(18.762745, 4.320498, 0)),
    Part.LineSegment(App.Vector(18.762745, 4.320498, 0), App.Vector(20.494796, 1.320498, 0)),
    Part.LineSegment(App.Vector(20.494796, 1.320498, 0), App.Vector(18.762745, -1.679502, 0)),
    Part.LineSegment(App.Vector(18.762745, -1.679502, 0), App.Vector(15.298644, -1.679502, 0)),
    Part.LineSegment(App.Vector(15.298644, -1.679502, 0), App.Vector(13.566593, 1.320498, 0)),
    Part.LineSegment(App.Vector(13.566593, 1.320498, 0), App.Vector(15.298644, 4.320498, 0)),
    Part.Circle(App.Vector(17.030694, 1.320498, 0), App.Vector(0, 0, 1), 1.25),
], False)
sketch9.addConstraint([
    Sketcher.Constraint("Coincident", 0, 2, 1, 1),
    Sketcher.Constraint("Coincident", 1, 2, 2, 1),
    Sketcher.Constraint("Coincident", 2, 2, 3, 1),
    Sketcher.Constraint("Coincident", 3, 2, 4, 1),
    Sketcher.Constraint("Coincident", 4, 2, 5, 1),
    Sketcher.Constraint("Coincident", 5, 2, 0, 1),
    Sketcher.Constraint("Horizontal", 0),
    Sketcher.Constraint("Horizontal", 3),
    Sketcher.Constraint("Parallel", 1, 4),
    Sketcher.Constraint("Parallel", 2, 5),
    Sketcher.Constraint("Horizontal", 6, 3, 1, 2),
    Sketcher.Constraint("Horizontal", 1, 2, 4, 2),
    Sketcher.Constraint("Vertical", 0, 2, 2, 2),
    Sketcher.Constraint("Vertical", 3, 2, 5, 2),
    Sketcher.Constraint("Diameter", 6, Q("2.5 mm")),
    Sketcher.Constraint("Angle", 1, Q("-60 deg")),
    Sketcher.Constraint("DistanceY", 6, 3, 0, 2, Q("3 mm")),
    Sketcher.Constraint("DistanceX", 0, 1, 0, 2, Q("3.464102 mm")),
    Sketcher.Constraint("DistanceX", 6, 3, 1, 2, Q("3.464102 mm")),
    Sketcher.Constraint("DistanceX", -1, 1, 6, 3, Q("17.030694 mm")),
    Sketcher.Constraint("DistanceY", -1, 1, 6, 3, Q("1.320498 mm")),
])
pad7 = body.newObject("PartDesign::Pad", "Pad006")
pad7.Profile = sketch9
pad7.Length = 2.5
doc.recompute()

mirrored2 = body.newObject("PartDesign::Mirrored", "Mirrored001")
mirrored2.Originals = [pad5, pad6, pocket2, pad7]
mirrored2.MirrorPlane = (doc.getObject("YZ_Plane"), [""])
body.Tip = mirrored2

doc.recompute()
